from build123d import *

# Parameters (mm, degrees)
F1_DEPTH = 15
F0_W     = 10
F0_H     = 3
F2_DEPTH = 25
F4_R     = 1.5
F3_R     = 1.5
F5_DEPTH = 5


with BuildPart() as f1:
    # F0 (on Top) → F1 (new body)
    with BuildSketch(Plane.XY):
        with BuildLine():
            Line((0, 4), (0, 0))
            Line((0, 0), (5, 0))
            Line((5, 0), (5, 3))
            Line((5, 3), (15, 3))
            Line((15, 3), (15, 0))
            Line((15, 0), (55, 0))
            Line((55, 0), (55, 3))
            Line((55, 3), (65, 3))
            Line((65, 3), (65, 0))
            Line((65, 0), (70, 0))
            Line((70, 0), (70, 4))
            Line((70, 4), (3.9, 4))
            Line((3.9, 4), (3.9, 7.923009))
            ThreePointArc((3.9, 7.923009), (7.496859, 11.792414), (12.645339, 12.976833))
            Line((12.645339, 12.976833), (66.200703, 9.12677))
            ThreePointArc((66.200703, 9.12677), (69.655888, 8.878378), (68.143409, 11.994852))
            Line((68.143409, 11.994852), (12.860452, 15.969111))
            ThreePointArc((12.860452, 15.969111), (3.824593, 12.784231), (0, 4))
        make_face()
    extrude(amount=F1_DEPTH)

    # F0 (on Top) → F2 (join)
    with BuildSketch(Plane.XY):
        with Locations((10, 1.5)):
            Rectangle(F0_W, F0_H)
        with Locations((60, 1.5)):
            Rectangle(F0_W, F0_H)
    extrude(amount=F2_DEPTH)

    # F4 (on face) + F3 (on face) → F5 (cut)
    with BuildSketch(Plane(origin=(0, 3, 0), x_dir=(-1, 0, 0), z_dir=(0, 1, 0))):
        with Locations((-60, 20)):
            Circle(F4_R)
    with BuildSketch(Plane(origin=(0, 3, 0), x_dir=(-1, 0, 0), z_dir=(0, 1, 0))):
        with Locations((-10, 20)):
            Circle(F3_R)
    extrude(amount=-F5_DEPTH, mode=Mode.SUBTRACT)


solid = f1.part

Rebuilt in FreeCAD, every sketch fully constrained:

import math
import FreeCAD as App
import Part
import Sketcher
from FreeCAD import Vector


def add_polygon(sketch, points):
    """Adds a closed chain of lines whose ends are joined by coincident constraints."""
    first, n = sketch.GeometryCount, len(points)
    for a, b in zip(points, points[1:] + points[:1]):
        sketch.addGeometry(Part.LineSegment(App.Vector(*a, 0), App.Vector(*b, 0)), False)
    for i in range(n):
        sketch.addConstraint(Sketcher.Constraint("Coincident", first + i, 2, first + (i + 1) % n, 1))

doc = App.newDocument("Part")
body = doc.addObject("PartDesign::Body", "Body")

# Sketch on XY plane
sketch1 = body.newObject("Sketcher::SketchObject", "Sketch")
sketch1.AttachmentSupport = (doc.getObject("XY_Plane"), [""])
sketch1.MapMode = "FlatFace"
sketch1.addGeometry([
    Part.LineSegment(Vector(0, 4, 0), Vector(0, 0, 0)),  # 0
    Part.LineSegment(Vector(0, 0, 0), Vector(5, 0, 0)),  # 1
    Part.LineSegment(Vector(5, 0, 0), Vector(5, 3, 0)),  # 2
    Part.LineSegment(Vector(5, 3, 0), Vector(15, 3, 0)),  # 3
    Part.LineSegment(Vector(15, 3, 0), Vector(15, 0, 0)),  # 4
    Part.LineSegment(Vector(15, 0, 0), Vector(55, 0, 0)),  # 5
    Part.LineSegment(Vector(55, 0, 0), Vector(55, 3, 0)),  # 6
    Part.LineSegment(Vector(55, 3, 0), Vector(65, 3, 0)),  # 7
    Part.LineSegment(Vector(65, 3, 0), Vector(65, 0, 0)),  # 8
    Part.LineSegment(Vector(65, 0, 0), Vector(70, 0, 0)),  # 9
    Part.LineSegment(Vector(70, 0, 0), Vector(70, 4, 0)),  # 10
    Part.LineSegment(Vector(70, 4, 0), Vector(3.9, 4, 0)),  # 11
    Part.LineSegment(Vector(3.9, 4, 0), Vector(3.9, 7.9, 0)),  # 12
    Part.ArcOfCircle(Part.Circle(Vector(12, 4, 0), Vector(0, 0, 1), 9), math.radians(86), math.radians(154)),  # 13
    Part.LineSegment(Vector(12.6, 13, 0), Vector(66.2, 9.1, 0)),  # 14
    Part.ArcOfCircle(Part.Circle(Vector(68, 10, 0), Vector(0, 0, 1), 2), math.radians(-154), math.radians(86)),  # 15
    Part.LineSegment(Vector(68.1, 12, 0), Vector(12.9, 16, 0)),  # 16
    Part.ArcOfCircle(Part.Circle(Vector(12, 4, 0), Vector(0, 0, 1), 12), math.radians(86), math.radians(180)),  # 17
], False)
sketch1.addConstraint([
    Sketcher.Constraint("Coincident", 0, 2, 1, 1),
    Sketcher.Constraint("Coincident", 1, 2, 2, 1),
    Sketcher.Constraint("Coincident", 2, 2, 3, 1),
    Sketcher.Constraint("Coincident", 3, 2, 4, 1),
    Sketcher.Constraint("Coincident", 4, 2, 5, 1),
    Sketcher.Constraint("Coincident", 5, 2, 6, 1),
    Sketcher.Constraint("Coincident", 6, 2, 7, 1),
    Sketcher.Constraint("Coincident", 7, 2, 8, 1),
    Sketcher.Constraint("Coincident", 8, 2, 9, 1),
    Sketcher.Constraint("Coincident", 9, 2, 10, 1),
    Sketcher.Constraint("Coincident", 10, 2, 11, 1),
    Sketcher.Constraint("Coincident", 11, 2, 12, 1),
    Sketcher.Constraint("Coincident", 12, 2, 13, 2),
    Sketcher.Constraint("Tangent", 13, 1, 14, 1),
    Sketcher.Constraint("Coincident", 14, 2, 15, 1),
    Sketcher.Constraint("Tangent", 15, 2, 16, 1),
    Sketcher.Constraint("Tangent", 16, 2, 17, 1),
    Sketcher.Constraint("Tangent", 17, 2, 0, 1),
    Sketcher.Constraint("Vertical", 0),
    Sketcher.Constraint("Horizontal", 1),
    Sketcher.Constraint("Vertical", 2),
    Sketcher.Constraint("Horizontal", 3),
    Sketcher.Constraint("Vertical", 4),
    Sketcher.Constraint("Horizontal", 5),
    Sketcher.Constraint("Vertical", 6),
    Sketcher.Constraint("Horizontal", 7),
    Sketcher.Constraint("Vertical", 8),
    Sketcher.Constraint("Horizontal", 9),
    Sketcher.Constraint("Vertical", 10),
    Sketcher.Constraint("Horizontal", 11),
    Sketcher.Constraint("Vertical", 12),
    Sketcher.Constraint("Coincident", 0, 2, -1, 1),
    Sketcher.Constraint("Coincident", 17, 3, 13, 3),
    Sketcher.Constraint("PointOnObject", 4, 2, -1),
    Sketcher.Constraint("PointOnObject", 8, 2, -1),
    Sketcher.Constraint("Parallel", 14, 16),
    Sketcher.Constraint("Horizontal", 3, 2, 6, 2),
    Sketcher.Constraint("Horizontal", 17, 3, 10, 2),
    Sketcher.Constraint("Equal", 3, 7),
    Sketcher.Constraint("Equal", 1, 9),
    Sketcher.Constraint("Radius", 13, 9.0),
    Sketcher.Constraint("Radius", 15, 2.0),
    Sketcher.Constraint("Radius", 17, 12.0),
    Sketcher.Constraint("DistanceX", 1, 1, 1, 2, 5.0),
    Sketcher.Constraint("DistanceX", 3, 1, 3, 2, 10.0),
    Sketcher.Constraint("DistanceX", 5, 1, 5, 2, 40.0),
    Sketcher.Constraint("DistanceY", 0, 2, 0, 1, 4.0),
    Sketcher.Constraint("DistanceY", 2, 1, 2, 2, 3.0),
    Sketcher.Constraint("DistanceX", 11, 2, 11, 1, 66.1),
    Sketcher.Constraint("DistanceX", -1, 1, 15, 3, 68.0),
    Sketcher.Constraint("DistanceY", -1, 1, 15, 3, 10.0),
])
pad1 = body.newObject("PartDesign::Pad", "Pad")
pad1.Profile = sketch1
pad1.Length = 15

# Sketch on XY plane
sketch2 = body.newObject("Sketcher::SketchObject", "Sketch001")
sketch2.AttachmentSupport = (doc.getObject("XY_Plane"), [""])
sketch2.MapMode = "FlatFace"
add_polygon(sketch2, [(5, 3), (5, 0), (15, 0), (15, 3)])  # lines 0-3
add_polygon(sketch2, [(55, 3), (55, 0), (65, 0), (65, 3)])  # lines 4-7
sketch2.addConstraint([
    Sketcher.Constraint("Vertical", 0),
    Sketcher.Constraint("Horizontal", 1),
    Sketcher.Constraint("Vertical", 2),
    Sketcher.Constraint("Horizontal", 3),
    Sketcher.Constraint("Vertical", 4),
    Sketcher.Constraint("Horizontal", 5),
    Sketcher.Constraint("Vertical", 6),
    Sketcher.Constraint("Horizontal", 7),
    Sketcher.Constraint("PointOnObject", 0, 2, -1),
    Sketcher.Constraint("PointOnObject", 4, 2, -1),
    Sketcher.Constraint("Horizontal", 3, 2, 6, 2),
    Sketcher.Constraint("Equal", 3, 5),
    Sketcher.Constraint("DistanceX", 1, 1, 1, 2, 10.0),
    Sketcher.Constraint("DistanceY", 0, 2, 0, 1, 3.0),
    Sketcher.Constraint("DistanceX", -1, 1, 0, 2, 5.0),
    Sketcher.Constraint("DistanceX", -1, 1, 4, 2, 55.0),
])
pad2 = body.newObject("PartDesign::Pad", "Pad001")
pad2.Profile = sketch2
pad2.Length = 25

# Sketch on XZ plane
sketch3 = body.newObject("Sketcher::SketchObject", "Sketch002")
sketch3.AttachmentSupport = (doc.getObject("XZ_Plane"), [""])
sketch3.MapMode = "FlatFace"
sketch3.AttachmentOffset = App.Placement(Vector(0, 0, -3), App.Rotation())
sketch3.addGeometry([
    Part.Circle(Vector(60, 20, 0), Vector(0, 0, 1), 1.5),
    Part.Circle(Vector(10, 20, 0), Vector(0, 0, 1), 1.5),
], False)
sketch3.addConstraint([
    Sketcher.Constraint("Equal", 0, 1),
    Sketcher.Constraint("Horizontal", 0, 3, 1, 3),
    Sketcher.Constraint("Diameter", 0, 3.0),
    Sketcher.Constraint("DistanceX", -1, 1, 0, 3, 60.0),
    Sketcher.Constraint("DistanceY", -1, 1, 0, 3, 20.0),
    Sketcher.Constraint("DistanceX", -1, 1, 1, 3, 10.0),
])
pocket1 = body.newObject("PartDesign::Pocket", "Pocket")
pocket1.Profile = sketch3
pocket1.Length = 5
pocket1.Reversed = True

doc.recompute()
